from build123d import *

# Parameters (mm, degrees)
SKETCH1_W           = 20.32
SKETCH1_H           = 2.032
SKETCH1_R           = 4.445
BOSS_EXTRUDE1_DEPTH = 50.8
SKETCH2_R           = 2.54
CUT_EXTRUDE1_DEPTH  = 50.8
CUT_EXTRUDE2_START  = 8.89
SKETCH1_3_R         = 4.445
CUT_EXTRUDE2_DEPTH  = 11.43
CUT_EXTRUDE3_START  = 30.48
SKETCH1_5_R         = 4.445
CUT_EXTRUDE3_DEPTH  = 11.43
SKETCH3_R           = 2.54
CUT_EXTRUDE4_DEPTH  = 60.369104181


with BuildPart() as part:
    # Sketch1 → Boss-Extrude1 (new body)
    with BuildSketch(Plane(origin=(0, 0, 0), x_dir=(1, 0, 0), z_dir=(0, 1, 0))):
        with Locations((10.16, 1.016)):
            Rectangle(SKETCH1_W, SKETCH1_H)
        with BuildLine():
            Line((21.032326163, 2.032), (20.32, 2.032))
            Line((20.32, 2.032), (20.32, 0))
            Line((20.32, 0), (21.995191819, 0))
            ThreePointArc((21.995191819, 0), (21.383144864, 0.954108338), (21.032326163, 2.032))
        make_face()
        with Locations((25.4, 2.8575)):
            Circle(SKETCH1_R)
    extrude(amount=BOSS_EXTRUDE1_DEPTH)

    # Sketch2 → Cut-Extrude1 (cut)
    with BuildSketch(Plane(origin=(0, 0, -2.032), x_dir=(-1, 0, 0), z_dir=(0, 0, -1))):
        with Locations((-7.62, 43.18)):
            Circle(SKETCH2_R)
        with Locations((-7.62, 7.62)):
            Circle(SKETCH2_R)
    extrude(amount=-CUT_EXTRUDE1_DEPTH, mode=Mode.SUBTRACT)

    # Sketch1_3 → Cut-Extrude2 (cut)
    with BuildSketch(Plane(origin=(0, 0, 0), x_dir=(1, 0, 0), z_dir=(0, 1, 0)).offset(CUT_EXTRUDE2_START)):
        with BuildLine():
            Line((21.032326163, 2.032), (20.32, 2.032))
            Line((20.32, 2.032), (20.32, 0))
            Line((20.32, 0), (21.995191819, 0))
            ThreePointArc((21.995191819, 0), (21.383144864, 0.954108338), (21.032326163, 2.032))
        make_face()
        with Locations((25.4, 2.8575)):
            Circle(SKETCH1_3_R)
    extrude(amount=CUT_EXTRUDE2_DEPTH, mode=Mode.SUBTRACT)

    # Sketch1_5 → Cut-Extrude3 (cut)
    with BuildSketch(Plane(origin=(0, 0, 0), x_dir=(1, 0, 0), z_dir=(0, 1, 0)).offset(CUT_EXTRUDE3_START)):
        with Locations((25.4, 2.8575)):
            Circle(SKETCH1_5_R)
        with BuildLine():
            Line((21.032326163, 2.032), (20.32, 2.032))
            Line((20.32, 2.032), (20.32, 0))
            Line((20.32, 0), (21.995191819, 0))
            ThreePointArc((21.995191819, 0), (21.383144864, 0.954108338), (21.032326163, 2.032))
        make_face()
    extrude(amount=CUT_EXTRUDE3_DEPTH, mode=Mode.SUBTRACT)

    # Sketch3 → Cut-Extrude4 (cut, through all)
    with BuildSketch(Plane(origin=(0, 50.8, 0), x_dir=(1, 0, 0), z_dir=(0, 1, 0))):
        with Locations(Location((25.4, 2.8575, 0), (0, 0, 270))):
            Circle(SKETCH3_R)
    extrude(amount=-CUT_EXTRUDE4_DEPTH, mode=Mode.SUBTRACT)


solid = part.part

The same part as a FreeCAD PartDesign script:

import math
import FreeCAD as App
import Part
import Sketcher
from FreeCAD import Vector
Q = App.Units.Quantity

doc = App.newDocument("Part")
params = doc.addObject("Spreadsheet::Sheet", "Params")
for row, (alias, value) in enumerate([
    ("sketch1_radius", "0.175 in"),
    ("sketch1_height", "0.08 in"),
    ("pad1_length", "2 in"),
    ("sketch2_diameter", "0.2 in"),
    ("pocket1_length", "2 in"),
    ("sketch3_radius", "0.175 in"),
    ("sketch3_height", "0.08 in"),
    ("pocket2_length", "0.45 in"),
    ("sketch4_radius", "0.175 in"),
    ("sketch4_height", "0.08 in"),
    ("pocket3_length", "0.45 in"),
    ("sketch5_diameter", "0.2 in"),
], start=1):
    params.set(f"A{row}", alias)
    params.set(f"B{row}", "=" + value)
    params.setAlias(f"B{row}", alias)

body = doc.addObject("PartDesign::Body", "Body")

# Sketch on XZ plane
sketch1 = body.newObject("Sketcher::SketchObject", "Sketch")
sketch1.AttachmentSupport = (doc.getObject("XZ_Plane"), [""])
sketch1.MapMode = "FlatFace"
sketch1.addGeometry(Part.LineSegment(Vector(0, -2, 0), Vector(0, 0, 0)), False)
sketch1.addGeometry(Part.LineSegment(Vector(0, 0, 0), Vector(22, 0, 0)), False)
sketch1.addGeometry(Part.ArcOfCircle(Part.Circle(Vector(25.4, -2.9, 0), Vector(0, 0, 1), 4.4), math.radians(169), math.radians(500)), False)
sketch1.addGeometry(Part.LineSegment(Vector(21, -2, 0), Vector(0, -2, 0)), False)
sketch1.addConstraint(Sketcher.Constraint("Coincident", 0, 2, 1, 1))
sketch1.addConstraint(Sketcher.Constraint("Coincident", 1, 2, 2, 2))
sketch1.addConstraint(Sketcher.Constraint("Coincident", 2, 1, 3, 1))
sketch1.addConstraint(Sketcher.Constraint("Coincident", 3, 2, 0, 1))
sketch1.addConstraint(Sketcher.Constraint("Vertical", 0))
sketch1.addConstraint(Sketcher.Constraint("Horizontal", 1))
sketch1.addConstraint(Sketcher.Constraint("Horizontal", 3))
sketch1.addConstraint(Sketcher.Constraint("Coincident", 0, 2, -1, 1))
sketch1.addConstraint(Sketcher.Constraint("DistanceX", -1, 1, 2, 3, Q("1 in")))
sketch1.addConstraint(Sketcher.Constraint("Radius", 2, Q("0.175 in")))
sketch1.addConstraint(Sketcher.Constraint("DistanceY", 0, 1, 0, 2, Q("0.08 in")))
sketch1.addConstraint(Sketcher.Constraint("DistanceY", 2, 3, -1, 1, Q("0.1125 in")))
sketch1.setExpression("Constraints[9]", "Params.sketch1_radius")
sketch1.setExpression("Constraints[10]", "Params.sketch1_height")
pad1 = body.newObject("PartDesign::Pad", "Pad")
pad1.Profile = sketch1
pad1.setExpression("Length", "Params.pad1_length")
pad1.Reversed = True

# Sketch on XY plane
sketch2 = body.newObject("Sketcher::SketchObject", "Sketch001")
sketch2.AttachmentSupport = (doc.getObject("XY_Plane"), [""])
sketch2.MapMode = "FlatFace"
sketch2.AttachmentOffset = App.Placement(Vector(0, 0, -0.08 * 25.4), App.Rotation())
sketch2.addGeometry(Part.Circle(Vector(7.6, 43.2, 0), Vector(0, 0, 1), 2.5), False)
sketch2.addGeometry(Part.Circle(Vector(7.6, 7.6, 0), Vector(0, 0, 1), 2.5), False)
sketch2.addConstraint(Sketcher.Constraint("Equal", 0, 1))
sketch2.addConstraint(Sketcher.Constraint("Vertical", 0, 3, 1, 3))
sketch2.addConstraint(Sketcher.Constraint("Diameter", 0, Q("0.2 in")))
sketch2.addConstraint(Sketcher.Constraint("DistanceX", -1, 1, 0, 3, Q("0.3 in")))
sketch2.addConstraint(Sketcher.Constraint("DistanceY", -1, 1, 0, 3, Q("1.7 in")))
sketch2.addConstraint(Sketcher.Constraint("DistanceY", -1, 1, 1, 3, Q("0.3 in")))
sketch2.setExpression("Constraints[2]", "Params.sketch2_diameter")
pocket1 = body.newObject("PartDesign::Pocket", "Pocket")
pocket1.Profile = sketch2
pocket1.setExpression("Length", "Params.pocket1_length")
pocket1.Reversed = True

# Sketch on XZ plane
sketch3 = body.newObject("Sketcher::SketchObject", "Sketch002")
sketch3.AttachmentSupport = (doc.getObject("XZ_Plane"), [""])
sketch3.MapMode = "FlatFace"
sketch3.AttachmentOffset = App.Placement(Vector(0, 0, -0.35 * 25.4), App.Rotation())
sketch3.addGeometry(Part.LineSegment(Vector(21, -2, 0), Vector(20.3, -2, 0)), False)
sketch3.addGeometry(Part.LineSegment(Vector(20.3, -2, 0), Vector(20.3, 0, 0)), False)
sketch3.addGeometry(Part.LineSegment(Vector(20.3, 0, 0), Vector(22, 0, 0)), False)
sketch3.addGeometry(Part.ArcOfCircle(Part.Circle(Vector(25.4, -2.9, 0), Vector(0, 0, 1), 4.4), math.radians(169), math.radians(500)), False)
sketch3.addConstraint(Sketcher.Constraint("Coincident", 0, 2, 1, 1))
sketch3.addConstraint(Sketcher.Constraint("Coincident", 1, 2, 2, 1))
sketch3.addConstraint(Sketcher.Constraint("Coincident", 2, 2, 3, 2))
sketch3.addConstraint(Sketcher.Constraint("Coincident", 3, 1, 0, 1))
sketch3.addConstraint(Sketcher.Constraint("Horizontal", 0))
sketch3.addConstraint(Sketcher.Constraint("Vertical", 1))
sketch3.addConstraint(Sketcher.Constraint("Horizontal", 2))
sketch3.addConstraint(Sketcher.Constraint("PointOnObject", 1, 2, -1))
sketch3.addConstraint(Sketcher.Constraint("DistanceX", -1, 1, 3, 3, Q("1 in")))
sketch3.addConstraint(Sketcher.Constraint("Radius", 3, Q("0.175 in")))
sketch3.addConstraint(Sketcher.Constraint("DistanceY", 1, 1, 1, 2, Q("0.08 in")))
sketch3.addConstraint(Sketcher.Constraint("DistanceX", -1, 1, 0, 2, Q("0.8 in")))
sketch3.addConstraint(Sketcher.Constraint("DistanceY", 3, 3, -1, 1, Q("0.1125 in")))
sketch3.setExpression("Constraints[9]", "Params.sketch3_radius")
sketch3.setExpression("Constraints[10]", "Params.sketch3_height")
pocket2 = body.newObject("PartDesign::Pocket", "Pocket001")
pocket2.Profile = sketch3
pocket2.setExpression("Length", "Params.pocket2_length")

# Sketch on XZ plane
sketch4 = body.newObject("Sketcher::SketchObject", "Sketch003")
sketch4.AttachmentSupport = (doc.getObject("XZ_Plane"), [""])
sketch4.MapMode = "FlatFace"
sketch4.AttachmentOffset = App.Placement(Vector(0, 0, -1.2 * 25.4), App.Rotation())
sketch4.addGeometry(Part.LineSegment(Vector(21, -2, 0), Vector(20.3, -2, 0)), False)
sketch4.addGeometry(Part.LineSegment(Vector(20.3, -2, 0), Vector(20.3, 0, 0)), False)
sketch4.addGeometry(Part.LineSegment(Vector(20.3, 0, 0), Vector(22, 0, 0)), False)
sketch4.addGeometry(Part.ArcOfCircle(Part.Circle(Vector(25.4, -2.9, 0), Vector(0, 0, 1), 4.4), math.radians(169), math.radians(500)), False)
sketch4.addConstraint(Sketcher.Constraint("Coincident", 0, 2, 1, 1))
sketch4.addConstraint(Sketcher.Constraint("Coincident", 1, 2, 2, 1))
sketch4.addConstraint(Sketcher.Constraint("Coincident", 2, 2, 3, 2))
sketch4.addConstraint(Sketcher.Constraint("Coincident", 3, 1, 0, 1))
sketch4.addConstraint(Sketcher.Constraint("Horizontal", 0))
sketch4.addConstraint(Sketcher.Constraint("Vertical", 1))
sketch4.addConstraint(Sketcher.Constraint("Horizontal", 2))
sketch4.addConstraint(Sketcher.Constraint("PointOnObject", 1, 2, -1))
sketch4.addConstraint(Sketcher.Constraint("DistanceX", -1, 1, 3, 3, Q("1 in")))
sketch4.addConstraint(Sketcher.Constraint("Radius", 3, Q("0.175 in")))
sketch4.addConstraint(Sketcher.Constraint("DistanceY", 1, 1, 1, 2, Q("0.08 in")))
sketch4.addConstraint(Sketcher.Constraint("DistanceX", -1, 1, 0, 2, Q("0.8 in")))
sketch4.addConstraint(Sketcher.Constraint("DistanceY", 3, 3, -1, 1, Q("0.1125 in")))
sketch4.setExpression("Constraints[9]", "Params.sketch4_radius")
sketch4.setExpression("Constraints[10]", "Params.sketch4_height")
pocket3 = body.newObject("PartDesign::Pocket", "Pocket002")
pocket3.Profile = sketch4
pocket3.setExpression("Length", "Params.pocket3_length")

# Sketch on XZ plane
sketch5 = body.newObject("Sketcher::SketchObject", "Sketch004")
sketch5.AttachmentSupport = (doc.getObject("XZ_Plane"), [""])
sketch5.MapMode = "FlatFace"
sketch5.AttachmentOffset = App.Placement(Vector(0, 0, -2 * 25.4), App.Rotation())
sketch5.addGeometry(Part.Circle(Vector(25.4, -2.9, 0), Vector(0, 0, 1), 2.5), False)
sketch5.addConstraint(Sketcher.Constraint("Diameter", 0, Q("0.2 in")))
sketch5.addConstraint(Sketcher.Constraint("DistanceX", -1, 1, 0, 3, Q("1 in")))
sketch5.addConstraint(Sketcher.Constraint("DistanceY", 0, 3, -1, 1, Q("0.1125 in")))
sketch5.setExpression("Constraints[0]", "Params.sketch5_diameter")
pocket4 = body.newObject("PartDesign::Pocket", "Pocket003")
pocket4.Profile = sketch5
pocket4.Type = "ThroughAll"
pocket4.Reversed = True

doc.recompute()
